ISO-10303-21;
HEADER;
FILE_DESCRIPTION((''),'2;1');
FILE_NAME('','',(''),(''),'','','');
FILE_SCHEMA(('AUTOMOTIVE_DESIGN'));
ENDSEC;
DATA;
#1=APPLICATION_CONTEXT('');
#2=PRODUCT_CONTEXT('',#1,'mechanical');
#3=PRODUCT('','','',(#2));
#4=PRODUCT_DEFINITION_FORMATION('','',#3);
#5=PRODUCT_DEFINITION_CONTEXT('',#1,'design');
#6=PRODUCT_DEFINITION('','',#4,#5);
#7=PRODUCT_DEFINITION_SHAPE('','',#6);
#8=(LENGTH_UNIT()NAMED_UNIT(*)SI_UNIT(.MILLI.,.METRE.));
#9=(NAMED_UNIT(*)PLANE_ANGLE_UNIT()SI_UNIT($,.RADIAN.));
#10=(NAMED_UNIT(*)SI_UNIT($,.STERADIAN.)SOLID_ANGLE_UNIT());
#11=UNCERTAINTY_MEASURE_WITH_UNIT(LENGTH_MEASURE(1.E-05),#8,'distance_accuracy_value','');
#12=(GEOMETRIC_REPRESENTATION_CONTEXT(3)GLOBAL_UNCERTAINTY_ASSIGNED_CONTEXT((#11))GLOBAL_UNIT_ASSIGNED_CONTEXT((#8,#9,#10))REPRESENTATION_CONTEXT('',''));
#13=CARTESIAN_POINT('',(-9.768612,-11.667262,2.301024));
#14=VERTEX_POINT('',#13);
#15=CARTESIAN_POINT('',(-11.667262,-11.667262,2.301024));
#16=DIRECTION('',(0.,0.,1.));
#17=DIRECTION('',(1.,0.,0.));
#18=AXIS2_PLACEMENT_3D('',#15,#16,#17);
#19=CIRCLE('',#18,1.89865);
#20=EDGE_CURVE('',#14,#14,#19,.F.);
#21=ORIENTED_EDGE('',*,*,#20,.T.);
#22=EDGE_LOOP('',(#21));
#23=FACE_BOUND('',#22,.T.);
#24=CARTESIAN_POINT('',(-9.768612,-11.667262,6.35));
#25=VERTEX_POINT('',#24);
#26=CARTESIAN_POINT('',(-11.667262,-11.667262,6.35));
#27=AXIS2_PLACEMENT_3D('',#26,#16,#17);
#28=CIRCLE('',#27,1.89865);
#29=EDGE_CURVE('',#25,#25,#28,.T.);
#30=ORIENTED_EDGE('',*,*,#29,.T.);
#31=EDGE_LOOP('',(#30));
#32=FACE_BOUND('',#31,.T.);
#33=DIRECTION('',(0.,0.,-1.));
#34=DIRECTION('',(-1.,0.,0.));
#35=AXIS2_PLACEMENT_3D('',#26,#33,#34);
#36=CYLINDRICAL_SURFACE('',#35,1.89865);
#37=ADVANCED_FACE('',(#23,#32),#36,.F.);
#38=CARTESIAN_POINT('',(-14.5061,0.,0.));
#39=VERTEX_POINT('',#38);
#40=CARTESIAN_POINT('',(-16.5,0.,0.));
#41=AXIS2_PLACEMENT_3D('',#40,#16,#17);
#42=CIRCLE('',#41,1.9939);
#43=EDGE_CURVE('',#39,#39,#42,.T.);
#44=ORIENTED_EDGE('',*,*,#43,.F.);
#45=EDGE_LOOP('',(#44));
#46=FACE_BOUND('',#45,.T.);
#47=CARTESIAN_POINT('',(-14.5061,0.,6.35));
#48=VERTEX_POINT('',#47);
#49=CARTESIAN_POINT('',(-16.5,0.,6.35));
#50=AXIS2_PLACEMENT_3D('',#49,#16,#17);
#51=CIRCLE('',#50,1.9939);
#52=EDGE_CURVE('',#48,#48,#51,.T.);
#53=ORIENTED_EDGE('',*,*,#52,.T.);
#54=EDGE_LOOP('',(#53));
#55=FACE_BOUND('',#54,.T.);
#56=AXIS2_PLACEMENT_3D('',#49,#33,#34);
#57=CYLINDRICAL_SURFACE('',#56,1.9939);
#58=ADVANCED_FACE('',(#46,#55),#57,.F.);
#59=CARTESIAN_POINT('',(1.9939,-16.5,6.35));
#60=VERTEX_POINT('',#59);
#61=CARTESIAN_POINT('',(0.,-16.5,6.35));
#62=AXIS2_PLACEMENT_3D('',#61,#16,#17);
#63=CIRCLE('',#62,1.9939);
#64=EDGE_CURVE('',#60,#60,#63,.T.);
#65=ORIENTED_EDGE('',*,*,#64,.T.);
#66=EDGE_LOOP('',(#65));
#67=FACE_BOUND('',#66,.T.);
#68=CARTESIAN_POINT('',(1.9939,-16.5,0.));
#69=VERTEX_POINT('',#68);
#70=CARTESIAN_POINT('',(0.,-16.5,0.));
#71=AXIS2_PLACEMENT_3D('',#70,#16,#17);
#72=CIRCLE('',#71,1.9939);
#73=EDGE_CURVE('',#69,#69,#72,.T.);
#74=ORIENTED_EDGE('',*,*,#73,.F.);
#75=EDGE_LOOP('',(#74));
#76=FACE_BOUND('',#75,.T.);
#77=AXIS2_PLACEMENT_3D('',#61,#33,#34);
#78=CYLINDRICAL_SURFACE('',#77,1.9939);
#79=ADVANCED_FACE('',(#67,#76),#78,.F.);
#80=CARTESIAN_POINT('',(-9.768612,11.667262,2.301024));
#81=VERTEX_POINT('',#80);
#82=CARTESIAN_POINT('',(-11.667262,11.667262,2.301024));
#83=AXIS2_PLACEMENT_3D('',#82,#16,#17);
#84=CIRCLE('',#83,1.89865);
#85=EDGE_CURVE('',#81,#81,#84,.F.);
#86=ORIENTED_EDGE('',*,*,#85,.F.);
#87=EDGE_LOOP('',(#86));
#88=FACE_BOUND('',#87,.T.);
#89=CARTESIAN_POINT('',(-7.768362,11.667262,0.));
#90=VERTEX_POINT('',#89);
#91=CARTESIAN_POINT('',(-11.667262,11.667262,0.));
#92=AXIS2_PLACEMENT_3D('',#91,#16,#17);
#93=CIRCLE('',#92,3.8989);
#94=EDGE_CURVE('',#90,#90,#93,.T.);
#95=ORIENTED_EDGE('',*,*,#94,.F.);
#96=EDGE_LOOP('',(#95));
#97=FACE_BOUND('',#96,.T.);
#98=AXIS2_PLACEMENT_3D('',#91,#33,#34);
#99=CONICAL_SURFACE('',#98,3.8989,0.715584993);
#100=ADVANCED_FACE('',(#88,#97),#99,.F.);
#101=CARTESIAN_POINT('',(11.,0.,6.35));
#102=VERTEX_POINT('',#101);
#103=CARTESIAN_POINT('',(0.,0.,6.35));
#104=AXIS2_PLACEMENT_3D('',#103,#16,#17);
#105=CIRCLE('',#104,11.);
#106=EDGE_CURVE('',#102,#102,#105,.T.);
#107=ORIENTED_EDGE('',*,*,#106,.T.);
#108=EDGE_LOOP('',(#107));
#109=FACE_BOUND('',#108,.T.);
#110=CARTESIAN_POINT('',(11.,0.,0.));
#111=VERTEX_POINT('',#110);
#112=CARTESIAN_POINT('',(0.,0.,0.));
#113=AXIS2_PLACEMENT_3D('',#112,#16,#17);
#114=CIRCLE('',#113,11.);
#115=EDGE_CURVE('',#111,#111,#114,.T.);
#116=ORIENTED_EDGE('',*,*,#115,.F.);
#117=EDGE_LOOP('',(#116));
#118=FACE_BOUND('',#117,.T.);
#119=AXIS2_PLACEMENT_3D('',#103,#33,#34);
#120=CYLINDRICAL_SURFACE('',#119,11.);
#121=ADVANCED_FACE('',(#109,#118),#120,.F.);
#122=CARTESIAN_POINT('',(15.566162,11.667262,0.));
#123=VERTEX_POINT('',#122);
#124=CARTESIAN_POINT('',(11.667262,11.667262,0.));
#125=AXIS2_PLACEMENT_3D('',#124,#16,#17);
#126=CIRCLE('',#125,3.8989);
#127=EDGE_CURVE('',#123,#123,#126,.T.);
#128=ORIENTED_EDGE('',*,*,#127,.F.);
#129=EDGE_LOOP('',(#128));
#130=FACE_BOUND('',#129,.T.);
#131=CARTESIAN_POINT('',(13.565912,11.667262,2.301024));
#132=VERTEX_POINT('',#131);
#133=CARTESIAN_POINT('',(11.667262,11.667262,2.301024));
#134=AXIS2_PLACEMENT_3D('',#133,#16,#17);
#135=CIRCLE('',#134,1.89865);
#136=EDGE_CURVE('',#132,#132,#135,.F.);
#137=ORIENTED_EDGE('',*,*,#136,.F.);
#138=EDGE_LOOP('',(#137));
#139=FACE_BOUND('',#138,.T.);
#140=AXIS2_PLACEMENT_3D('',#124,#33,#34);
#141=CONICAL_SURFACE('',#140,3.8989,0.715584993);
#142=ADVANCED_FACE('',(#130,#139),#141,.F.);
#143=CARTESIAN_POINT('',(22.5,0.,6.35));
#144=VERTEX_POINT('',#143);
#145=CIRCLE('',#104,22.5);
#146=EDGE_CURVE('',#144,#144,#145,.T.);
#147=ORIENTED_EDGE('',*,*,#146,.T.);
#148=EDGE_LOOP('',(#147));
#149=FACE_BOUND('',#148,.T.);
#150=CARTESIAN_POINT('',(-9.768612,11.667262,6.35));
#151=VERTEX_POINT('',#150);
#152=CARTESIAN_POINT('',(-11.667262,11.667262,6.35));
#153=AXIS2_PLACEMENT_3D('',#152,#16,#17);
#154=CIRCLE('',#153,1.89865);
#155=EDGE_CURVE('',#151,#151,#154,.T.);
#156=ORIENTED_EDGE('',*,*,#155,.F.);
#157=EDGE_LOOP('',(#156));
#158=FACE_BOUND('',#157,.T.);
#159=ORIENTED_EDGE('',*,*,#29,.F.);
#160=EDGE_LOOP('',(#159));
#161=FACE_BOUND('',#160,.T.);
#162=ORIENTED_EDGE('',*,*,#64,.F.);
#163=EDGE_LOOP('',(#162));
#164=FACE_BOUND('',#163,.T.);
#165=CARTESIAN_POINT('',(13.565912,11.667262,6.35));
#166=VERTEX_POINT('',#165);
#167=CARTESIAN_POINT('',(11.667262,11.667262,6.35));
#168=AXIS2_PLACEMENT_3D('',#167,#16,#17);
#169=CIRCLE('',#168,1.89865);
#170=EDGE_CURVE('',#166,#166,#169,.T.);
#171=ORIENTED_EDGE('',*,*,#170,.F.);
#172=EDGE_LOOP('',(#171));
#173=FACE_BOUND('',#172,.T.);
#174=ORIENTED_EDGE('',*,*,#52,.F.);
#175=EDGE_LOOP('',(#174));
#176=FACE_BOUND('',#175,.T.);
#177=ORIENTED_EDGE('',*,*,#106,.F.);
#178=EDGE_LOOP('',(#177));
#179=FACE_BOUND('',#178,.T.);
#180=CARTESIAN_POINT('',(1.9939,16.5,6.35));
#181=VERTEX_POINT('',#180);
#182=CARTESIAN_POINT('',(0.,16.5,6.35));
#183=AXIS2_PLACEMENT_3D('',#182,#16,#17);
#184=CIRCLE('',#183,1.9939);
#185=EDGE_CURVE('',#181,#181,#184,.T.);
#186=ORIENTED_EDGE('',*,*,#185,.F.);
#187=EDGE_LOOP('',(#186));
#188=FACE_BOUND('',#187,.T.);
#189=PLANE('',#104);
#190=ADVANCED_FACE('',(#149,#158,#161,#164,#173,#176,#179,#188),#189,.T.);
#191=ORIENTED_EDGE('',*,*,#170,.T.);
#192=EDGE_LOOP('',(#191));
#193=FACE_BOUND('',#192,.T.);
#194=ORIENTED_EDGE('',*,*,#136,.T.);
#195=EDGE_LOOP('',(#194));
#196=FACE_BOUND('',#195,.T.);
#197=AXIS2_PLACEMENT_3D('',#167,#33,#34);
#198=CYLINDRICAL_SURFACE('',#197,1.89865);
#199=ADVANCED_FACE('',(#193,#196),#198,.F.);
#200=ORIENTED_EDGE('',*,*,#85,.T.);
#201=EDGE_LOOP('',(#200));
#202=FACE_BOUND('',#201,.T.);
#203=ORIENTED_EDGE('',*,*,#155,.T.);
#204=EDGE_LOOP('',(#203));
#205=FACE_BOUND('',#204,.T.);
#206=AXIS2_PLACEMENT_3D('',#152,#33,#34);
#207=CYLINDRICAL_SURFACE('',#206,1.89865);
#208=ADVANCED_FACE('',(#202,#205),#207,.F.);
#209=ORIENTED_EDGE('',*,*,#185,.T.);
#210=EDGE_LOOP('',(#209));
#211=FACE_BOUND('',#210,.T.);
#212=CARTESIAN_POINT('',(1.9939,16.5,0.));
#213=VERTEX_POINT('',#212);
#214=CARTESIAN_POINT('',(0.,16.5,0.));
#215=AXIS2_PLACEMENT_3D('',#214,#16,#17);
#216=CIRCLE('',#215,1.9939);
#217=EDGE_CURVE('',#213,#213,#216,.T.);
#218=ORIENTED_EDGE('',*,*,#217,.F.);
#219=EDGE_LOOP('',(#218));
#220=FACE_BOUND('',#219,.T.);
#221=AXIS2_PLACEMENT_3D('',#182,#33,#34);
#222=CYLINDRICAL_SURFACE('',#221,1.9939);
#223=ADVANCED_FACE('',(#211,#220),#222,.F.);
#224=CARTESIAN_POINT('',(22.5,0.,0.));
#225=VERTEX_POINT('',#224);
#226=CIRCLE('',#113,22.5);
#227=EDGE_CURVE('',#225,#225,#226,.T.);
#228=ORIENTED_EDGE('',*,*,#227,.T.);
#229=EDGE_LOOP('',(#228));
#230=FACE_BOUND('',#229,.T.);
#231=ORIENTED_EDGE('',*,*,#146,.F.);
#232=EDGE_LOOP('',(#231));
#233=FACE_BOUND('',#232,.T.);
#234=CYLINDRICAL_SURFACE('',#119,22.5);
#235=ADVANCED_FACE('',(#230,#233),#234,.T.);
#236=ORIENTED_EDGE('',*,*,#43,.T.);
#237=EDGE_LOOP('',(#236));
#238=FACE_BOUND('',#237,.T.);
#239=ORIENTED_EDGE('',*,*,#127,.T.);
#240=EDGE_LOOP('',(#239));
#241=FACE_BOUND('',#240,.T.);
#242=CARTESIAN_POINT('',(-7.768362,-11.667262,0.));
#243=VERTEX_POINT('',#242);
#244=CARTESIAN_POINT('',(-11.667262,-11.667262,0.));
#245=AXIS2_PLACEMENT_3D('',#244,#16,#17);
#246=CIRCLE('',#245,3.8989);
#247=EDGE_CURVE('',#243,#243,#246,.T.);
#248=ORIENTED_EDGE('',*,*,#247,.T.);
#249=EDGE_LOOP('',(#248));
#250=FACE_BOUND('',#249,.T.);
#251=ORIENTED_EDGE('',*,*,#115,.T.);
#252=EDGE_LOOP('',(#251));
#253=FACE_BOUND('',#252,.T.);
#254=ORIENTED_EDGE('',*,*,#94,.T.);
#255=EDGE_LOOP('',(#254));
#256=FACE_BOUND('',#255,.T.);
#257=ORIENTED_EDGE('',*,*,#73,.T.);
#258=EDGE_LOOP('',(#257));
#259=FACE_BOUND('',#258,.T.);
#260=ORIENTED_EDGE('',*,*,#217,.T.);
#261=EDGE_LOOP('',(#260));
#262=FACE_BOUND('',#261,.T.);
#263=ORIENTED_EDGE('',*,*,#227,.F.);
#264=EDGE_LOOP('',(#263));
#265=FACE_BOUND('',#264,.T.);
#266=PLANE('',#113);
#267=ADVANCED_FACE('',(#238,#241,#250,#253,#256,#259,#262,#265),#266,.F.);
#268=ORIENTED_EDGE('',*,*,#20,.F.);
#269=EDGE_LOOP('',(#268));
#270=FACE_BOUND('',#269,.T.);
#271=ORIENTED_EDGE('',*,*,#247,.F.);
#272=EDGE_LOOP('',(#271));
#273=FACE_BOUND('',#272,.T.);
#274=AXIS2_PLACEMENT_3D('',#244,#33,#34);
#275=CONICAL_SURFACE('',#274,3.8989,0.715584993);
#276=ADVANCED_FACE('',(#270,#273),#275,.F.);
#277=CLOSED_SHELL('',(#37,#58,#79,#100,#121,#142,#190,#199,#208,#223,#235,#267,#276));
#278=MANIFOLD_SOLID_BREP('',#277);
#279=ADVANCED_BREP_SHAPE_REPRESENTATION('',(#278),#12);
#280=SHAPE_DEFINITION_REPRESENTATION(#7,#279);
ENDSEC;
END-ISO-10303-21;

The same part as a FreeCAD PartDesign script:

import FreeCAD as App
import Part
import Sketcher
Q = App.Units.Quantity


def edges_at(feature, points):
    """Names of the edges that pass closest to the given points."""
    edges = feature.Shape.Edges
    near = lambda p: min(range(len(edges)), key=lambda i: edges[i].distToShape(Part.Vertex(*p))[0])
    return sorted({f"Edge{near(p) + 1}" for p in points})

doc = App.newDocument("Part")
body = doc.addObject("PartDesign::Body", "Body")

# Sketch on XY plane
sketch1 = body.newObject("Sketcher::SketchObject", "Sketch")
sketch1.AttachmentSupport = (doc.getObject("XY_Plane"), [""])
sketch1.MapMode = "FlatFace"
sketch1.addGeometry([
    Part.Circle(App.Vector(0, 0, 0), App.Vector(0, 0, 1), 22.5),  # 0
    Part.Circle(App.Vector(-11.667262, -11.667262, 0), App.Vector(0, 0, 1), 1.89865),  # 1
    Part.Circle(App.Vector(0, -16.5, 0), App.Vector(0, 0, 1), 1.9939),  # 2
    Part.Circle(App.Vector(-16.5, 0, 0), App.Vector(0, 0, 1), 1.9939),  # 3
    Part.Circle(App.Vector(-11.667262, 11.667262, 0), App.Vector(0, 0, 1), 1.89865),  # 4
    Part.Circle(App.Vector(0, 0, 0), App.Vector(0, 0, 1), 11),  # 5
    Part.Circle(App.Vector(0, 16.5, 0), App.Vector(0, 0, 1), 1.9939),  # 6
    Part.Circle(App.Vector(11.667262, 11.667262, 0), App.Vector(0, 0, 1), 1.89865),  # 7
], False)
sketch1.addConstraint([
    Sketcher.Constraint("Coincident", 0, 3, -1, 1),
    Sketcher.Constraint("Coincident", 5, 3, -1, 1),
    Sketcher.Constraint("Equal", 2, 3),
    Sketcher.Constraint("Equal", 1, 4),
    Sketcher.Constraint("Equal", 3, 6),
    Sketcher.Constraint("Equal", 4, 7),
    Sketcher.Constraint("Symmetric", 2, 3, 6, 3, -1, 1),
    Sketcher.Constraint("Symmetric", 1, 3, 7, 3, -1, 1),
    Sketcher.Constraint("Symmetric", 4, 3, 7, 3, -2),
    Sketcher.Constraint("PointOnObject", 2, 3, -2),
    Sketcher.Constraint("PointOnObject", 3, 3, -1),
    Sketcher.Constraint("Diameter", 0, Q("45 mm")),
    Sketcher.Constraint("Diameter", 5, Q("22 mm")),
    Sketcher.Constraint("Diameter", 1, Q("3.7973 mm")),
    Sketcher.Constraint("Diameter", 2, Q("3.9878 mm")),
    Sketcher.Constraint("DistanceY", 2, 3, -1, 1, Q("16.5 mm")),
    Sketcher.Constraint("DistanceX", 3, 3, -1, 1, Q("16.5 mm")),
    Sketcher.Constraint("DistanceX", 1, 3, -1, 1, Q("11.667262 mm")),
    Sketcher.Constraint("DistanceY", 1, 3, -1, 1, Q("11.667262 mm")),
])
pad1 = body.newObject("PartDesign::Pad", "Pad")
pad1.Profile = sketch1
pad1.Length = 6.35
doc.recompute()

chamfer = body.newObject("PartDesign::Chamfer", "Chamfer")
chamfer.Base = (pad1, edges_at(pad1, [(9.769, 11.667, 0)]))
chamfer.ChamferType = "Two distances"
chamfer.Size = 2.301024
chamfer.Size2 = 2.00025
doc.recompute()

chamfer2 = body.newObject("PartDesign::Chamfer", "Chamfer001")
chamfer2.Base = (chamfer, edges_at(chamfer, [(-13.566, -11.667, 0)]))
chamfer2.ChamferType = "Two distances"
chamfer2.Size = 2.301024
chamfer2.Size2 = 2.00025
chamfer2.FlipDirection = True
doc.recompute()

chamfer3 = body.newObject("PartDesign::Chamfer", "Chamfer002")
chamfer3.Base = (chamfer2, edges_at(chamfer2, [(-13.566, 11.667, 0)]))
chamfer3.ChamferType = "Two distances"
chamfer3.Size = 2.301024
chamfer3.Size2 = 2.00025
chamfer3.FlipDirection = True

doc.recompute()
